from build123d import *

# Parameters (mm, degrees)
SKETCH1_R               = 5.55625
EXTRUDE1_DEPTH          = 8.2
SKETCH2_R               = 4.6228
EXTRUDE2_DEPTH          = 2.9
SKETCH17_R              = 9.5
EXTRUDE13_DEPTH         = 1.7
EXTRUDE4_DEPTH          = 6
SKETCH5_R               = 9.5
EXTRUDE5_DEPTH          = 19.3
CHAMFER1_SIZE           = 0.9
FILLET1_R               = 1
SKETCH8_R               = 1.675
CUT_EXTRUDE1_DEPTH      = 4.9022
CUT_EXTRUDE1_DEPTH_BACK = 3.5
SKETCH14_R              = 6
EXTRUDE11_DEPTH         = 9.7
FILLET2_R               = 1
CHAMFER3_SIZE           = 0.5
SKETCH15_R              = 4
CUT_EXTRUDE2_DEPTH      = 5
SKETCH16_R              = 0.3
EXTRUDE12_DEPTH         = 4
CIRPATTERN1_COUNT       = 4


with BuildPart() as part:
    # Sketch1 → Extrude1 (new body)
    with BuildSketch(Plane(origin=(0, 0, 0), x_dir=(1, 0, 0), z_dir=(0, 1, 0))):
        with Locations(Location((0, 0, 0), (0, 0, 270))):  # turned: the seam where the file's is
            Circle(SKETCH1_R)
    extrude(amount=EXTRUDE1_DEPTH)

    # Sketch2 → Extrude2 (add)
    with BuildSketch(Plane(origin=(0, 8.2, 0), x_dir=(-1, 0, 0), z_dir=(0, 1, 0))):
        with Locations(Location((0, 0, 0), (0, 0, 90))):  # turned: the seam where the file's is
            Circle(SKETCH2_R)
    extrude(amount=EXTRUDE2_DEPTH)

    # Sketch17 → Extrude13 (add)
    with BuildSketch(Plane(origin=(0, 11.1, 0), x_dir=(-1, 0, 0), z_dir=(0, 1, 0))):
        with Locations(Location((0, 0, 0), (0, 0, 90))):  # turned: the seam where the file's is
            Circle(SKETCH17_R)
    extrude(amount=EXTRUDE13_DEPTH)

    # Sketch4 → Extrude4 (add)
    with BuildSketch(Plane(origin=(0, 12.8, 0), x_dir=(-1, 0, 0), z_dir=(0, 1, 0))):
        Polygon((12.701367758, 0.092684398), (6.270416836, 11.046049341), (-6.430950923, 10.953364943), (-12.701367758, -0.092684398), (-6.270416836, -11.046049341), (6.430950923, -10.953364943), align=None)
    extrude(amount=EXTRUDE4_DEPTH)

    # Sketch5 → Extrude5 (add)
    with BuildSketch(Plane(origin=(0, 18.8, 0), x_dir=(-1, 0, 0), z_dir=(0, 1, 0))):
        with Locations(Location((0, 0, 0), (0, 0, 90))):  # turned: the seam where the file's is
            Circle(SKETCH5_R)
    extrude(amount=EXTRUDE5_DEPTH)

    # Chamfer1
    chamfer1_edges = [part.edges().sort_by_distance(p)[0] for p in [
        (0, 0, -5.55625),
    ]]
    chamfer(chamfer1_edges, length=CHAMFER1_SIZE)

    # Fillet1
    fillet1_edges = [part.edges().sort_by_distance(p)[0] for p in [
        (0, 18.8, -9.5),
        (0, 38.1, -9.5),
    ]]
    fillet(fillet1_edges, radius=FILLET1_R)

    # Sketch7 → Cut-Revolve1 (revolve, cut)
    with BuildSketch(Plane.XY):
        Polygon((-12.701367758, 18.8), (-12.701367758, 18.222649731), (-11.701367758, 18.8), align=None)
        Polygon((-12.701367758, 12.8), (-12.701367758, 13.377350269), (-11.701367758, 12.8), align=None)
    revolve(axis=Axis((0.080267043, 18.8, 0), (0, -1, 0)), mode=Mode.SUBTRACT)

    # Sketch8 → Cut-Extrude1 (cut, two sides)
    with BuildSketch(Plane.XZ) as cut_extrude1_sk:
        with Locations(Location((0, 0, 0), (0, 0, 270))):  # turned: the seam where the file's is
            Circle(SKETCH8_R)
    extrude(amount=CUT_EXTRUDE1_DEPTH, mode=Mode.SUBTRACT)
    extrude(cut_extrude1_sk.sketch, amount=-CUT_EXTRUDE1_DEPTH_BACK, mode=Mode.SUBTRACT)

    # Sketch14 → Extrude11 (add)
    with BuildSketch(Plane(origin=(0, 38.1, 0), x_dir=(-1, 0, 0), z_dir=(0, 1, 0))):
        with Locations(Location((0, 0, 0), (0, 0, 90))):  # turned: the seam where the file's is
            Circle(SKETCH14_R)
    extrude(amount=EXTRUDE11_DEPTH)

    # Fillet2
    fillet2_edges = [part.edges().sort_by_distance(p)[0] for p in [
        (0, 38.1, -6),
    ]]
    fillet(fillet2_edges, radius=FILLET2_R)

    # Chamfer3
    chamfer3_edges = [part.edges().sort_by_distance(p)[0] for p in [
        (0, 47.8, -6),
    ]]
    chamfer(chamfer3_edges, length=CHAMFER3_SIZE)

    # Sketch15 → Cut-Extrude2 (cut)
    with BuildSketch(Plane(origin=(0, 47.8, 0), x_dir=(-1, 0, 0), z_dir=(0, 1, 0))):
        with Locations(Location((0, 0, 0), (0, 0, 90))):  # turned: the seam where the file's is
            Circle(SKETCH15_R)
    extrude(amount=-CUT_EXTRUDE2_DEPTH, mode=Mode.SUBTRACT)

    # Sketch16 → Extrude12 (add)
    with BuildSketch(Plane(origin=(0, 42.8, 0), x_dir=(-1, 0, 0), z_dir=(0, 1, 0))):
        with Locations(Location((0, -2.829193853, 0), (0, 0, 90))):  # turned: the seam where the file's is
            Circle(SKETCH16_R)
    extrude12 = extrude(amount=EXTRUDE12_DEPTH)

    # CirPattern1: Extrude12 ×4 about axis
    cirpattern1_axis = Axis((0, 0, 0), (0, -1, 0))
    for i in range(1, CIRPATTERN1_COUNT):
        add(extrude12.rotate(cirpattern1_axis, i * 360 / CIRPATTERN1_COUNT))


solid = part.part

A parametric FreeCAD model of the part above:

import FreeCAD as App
import Part
import Sketcher
from FreeCAD import Vector
Q = App.Units.Quantity


def edges_at(feature, points):
    """Names of the edges that pass closest to the given points."""
    edges = feature.Shape.Edges
    near = lambda p: min(range(len(edges)), key=lambda i: edges[i].distToShape(Part.Vertex(*p))[0])
    return sorted({f"Edge{near(p) + 1}" for p in points})

doc = App.newDocument("Part")
body = doc.addObject("PartDesign::Body", "Body")

sketch1 = doc.addObject("Sketcher::SketchObject", "Sketch")
body.addObject(sketch1)
sketch1.AttachmentSupport = (doc.XZ_Plane, [""])
sketch1.MapMode = "FlatFace"
sketch1.addGeometry(Part.Circle(Vector(0, 0, 0), Vector(0, 0, 1), 6), False)
sketch1.addConstraint([
    Sketcher.Constraint("Coincident", 0, 3, -1, 1),
    Sketcher.Constraint("Diameter", 0, Q("11.1125 mm")),
])
pad1 = doc.addObject("PartDesign::Pad", "Pad")
body.addObject(pad1)
pad1.Profile = sketch1
pad1.Length = 8.2
pad1.Reversed = True

sketch2 = doc.addObject("Sketcher::SketchObject", "Sketch001")
body.addObject(sketch2)
sketch2.AttachmentSupport = (doc.XZ_Plane, [""])
sketch2.MapMode = "FlatFace"
sketch2.AttachmentOffset = App.Placement(Vector(0, 0, -8.2), App.Rotation())
sketch2.addGeometry(Part.Circle(Vector(0, 0, 0), Vector(0, 0, 1), 4.6), False)
sketch2.addConstraint([
    Sketcher.Constraint("Coincident", 0, 3, -1, 1),
    Sketcher.Constraint("Diameter", 0, Q("9.2456 mm")),
])
pad2 = doc.addObject("PartDesign::Pad", "Pad001")
body.addObject(pad2)
pad2.Profile = sketch2
pad2.Length = 2.9
pad2.Reversed = True

sketch3 = doc.addObject("Sketcher::SketchObject", "Sketch002")
body.addObject(sketch3)
sketch3.AttachmentSupport = (doc.XZ_Plane, [""])
sketch3.MapMode = "FlatFace"
sketch3.AttachmentOffset = App.Placement(Vector(0, 0, -11.1), App.Rotation())
sketch3.addGeometry(Part.Circle(Vector(0, 0, 0), Vector(0, 0, 1), 10), False)
sketch3.addConstraint([
    Sketcher.Constraint("Coincident", 0, 3, -1, 1),
    Sketcher.Constraint("Diameter", 0, Q("19 mm")),
])
pad3 = doc.addObject("PartDesign::Pad", "Pad002")
body.addObject(pad3)
pad3.Profile = sketch3
pad3.Length = 1.7
pad3.Reversed = True

sketch4 = doc.addObject("Sketcher::SketchObject", "Sketch003")
body.addObject(sketch4)
sketch4.AttachmentSupport = (doc.XZ_Plane, [""])
sketch4.MapMode = "FlatFace"
sketch4.AttachmentOffset = App.Placement(Vector(0, 0, -12.8), App.Rotation())
sketch4.addGeometry([
    Part.LineSegment(Vector(-13, 0, 0), Vector(-6, 11, 0)),
    Part.LineSegment(Vector(-6, 11, 0), Vector(6, 11, 0)),
    Part.LineSegment(Vector(6, 11, 0), Vector(13, 0, 0)),
    Part.LineSegment(Vector(13, 0, 0), Vector(6, -11, 0)),
    Part.LineSegment(Vector(6, -11, 0), Vector(-6, -11, 0)),
    Part.LineSegment(Vector(-6, -11, 0), Vector(-13, 0, 0)),
], False)
sketch4.addConstraint([
    Sketcher.Constraint("Coincident", 0, 2, 1, 1),
    Sketcher.Constraint("Coincident", 1, 2, 2, 1),
    Sketcher.Constraint("Coincident", 2, 2, 3, 1),
    Sketcher.Constraint("Coincident", 3, 2, 4, 1),
    Sketcher.Constraint("Coincident", 4, 2, 5, 1),
    Sketcher.Constraint("Coincident", 5, 2, 0, 1),
    Sketcher.Constraint("Symmetric", 0, 2, 3, 2, -1, 1),
    Sketcher.Constraint("Symmetric", 1, 2, 4, 2, -1, 1),
    Sketcher.Constraint("Symmetric", 2, 2, 5, 2, -1, 1),
    Sketcher.Constraint("Equal", 0, 1),
    Sketcher.Constraint("Equal", 1, 2),
    Sketcher.Constraint("DistanceY", 3, 2, 0, 2, Q("22.092099 mm")),
    Sketcher.Constraint("DistanceX", 4, 2, 1, 2, Q("12.861902 mm")),
    Sketcher.Constraint("DistanceY", 2, 2, 1, 2, Q("11.046049 mm")),
    Sketcher.Constraint("DistanceX", 3, 2, 2, 2, Q("6.430951 mm")),
])
pad4 = doc.addObject("PartDesign::Pad", "Pad003")
body.addObject(pad4)
pad4.Profile = sketch4
pad4.Length = 6
pad4.Reversed = True

sketch5 = doc.addObject("Sketcher::SketchObject", "Sketch004")
body.addObject(sketch5)
sketch5.AttachmentSupport = (doc.XZ_Plane, [""])
sketch5.MapMode = "FlatFace"
sketch5.AttachmentOffset = App.Placement(Vector(0, 0, -18.8), App.Rotation())
sketch5.addGeometry(Part.Circle(Vector(0, 0, 0), Vector(0, 0, 1), 10), False)
sketch5.addConstraint([
    Sketcher.Constraint("Coincident", 0, 3, -1, 1),
    Sketcher.Constraint("Diameter", 0, Q("19 mm")),
])
pad5 = doc.addObject("PartDesign::Pad", "Pad004")
body.addObject(pad5)
pad5.Profile = sketch5
pad5.Length = 19.3
pad5.Reversed = True
doc.recompute()

chamfer = doc.addObject("PartDesign::Chamfer", "Chamfer")
body.addObject(chamfer)
chamfer.Base = (pad5, edges_at(pad5, [(0, 0, -5.556)]))
chamfer.Size = 0.9
doc.recompute()

fillet = doc.addObject("PartDesign::Fillet", "Fillet")
body.addObject(fillet)
fillet.Base = (chamfer, edges_at(chamfer, [(0, 18.8, -9.5), (0, 38.1, -9.5)]))
fillet.Radius = 1

sketch6 = doc.addObject("Sketcher::SketchObject", "Sketch005")
body.addObject(sketch6)
sketch6.AttachmentSupport = (doc.XY_Plane, [""])
sketch6.MapMode = "FlatFace"
sketch6.addGeometry([
    Part.LineSegment(Vector(-12.7, 18.8, 0), Vector(-12.7, 18.2, 0)),
    Part.LineSegment(Vector(-12.7, 18.2, 0), Vector(-11.7, 18.8, 0)),
    Part.LineSegment(Vector(-11.7, 18.8, 0), Vector(-12.7, 18.8, 0)),
    Part.LineSegment(Vector(-12.7, 13.4, 0), Vector(-12.7, 12.8, 0)),
    Part.LineSegment(Vector(-12.7, 12.8, 0), Vector(-11.7, 12.8, 0)),
    Part.LineSegment(Vector(-11.7, 12.8, 0), Vector(-12.7, 13.4, 0)),
], False)
sketch6.addGeometry(Part.LineSegment(Vector(0.1, 18.8, 0), Vector(0.1, 12.8, 0)), True)
sketch6.addConstraint([
    Sketcher.Constraint("Coincident", 0, 2, 1, 1),
    Sketcher.Constraint("Coincident", 1, 2, 2, 1),
    Sketcher.Constraint("Coincident", 2, 2, 0, 1),
    Sketcher.Constraint("Coincident", 3, 2, 4, 1),
    Sketcher.Constraint("Coincident", 4, 2, 5, 1),
    Sketcher.Constraint("Coincident", 5, 2, 3, 1),
    Sketcher.Constraint("Vertical", 0),
    Sketcher.Constraint("Horizontal", 2),
    Sketcher.Constraint("Vertical", 3),
    Sketcher.Constraint("Horizontal", 4),
    Sketcher.Constraint("Vertical", 6),
    Sketcher.Constraint("Horizontal", 2, 2, 6, 1),
    Sketcher.Constraint("Horizontal", 4, 2, 6, 2),
    Sketcher.Constraint("Vertical", 2, 2, 3, 2),
    Sketcher.Constraint("Vertical", 1, 2, 4, 2),
    Sketcher.Constraint("Equal", 0, 3),
    Sketcher.Constraint("DistanceX", 2, 2, 2, 1, Q("1 mm")),
    Sketcher.Constraint("DistanceY", 6, 2, 6, 1, Q("6 mm")),
    Sketcher.Constraint("Angle", 1, Q("30 deg")),
    Sketcher.Constraint("DistanceY", -1, 1, 1, 2, Q("18.8 mm")),
    Sketcher.Constraint("DistanceX", 0, 2, -1, 1, Q("12.701368 mm")),
    Sketcher.Constraint("DistanceX", -1, 1, 6, 1, Q("0.080267 mm")),
])
groove = doc.addObject("PartDesign::Groove", "Groove")
body.addObject(groove)
groove.Profile = sketch6
groove.ReferenceAxis = (sketch6, ["Axis0"])
groove.Angle = 360

sketch7 = doc.addObject("Sketcher::SketchObject", "Sketch006")
body.addObject(sketch7)
sketch7.AttachmentSupport = (doc.XZ_Plane, [""])
sketch7.MapMode = "FlatFace"
sketch7.addGeometry(Part.Circle(Vector(0, 0, 0), Vector(0, 0, 1), 1.7), False)
sketch7.addConstraint([
    Sketcher.Constraint("Coincident", 0, 3, -1, 1),
    Sketcher.Constraint("Diameter", 0, Q("3.35 mm")),
])
pocket1 = doc.addObject("PartDesign::Pocket", "Pocket")
body.addObject(pocket1)
pocket1.Profile = sketch7
pocket1.Type = "TwoLengths"
pocket1.Length = 4.9022
pocket1.Length2 = 3.5
pocket1.Reversed = True

sketch8 = doc.addObject("Sketcher::SketchObject", "Sketch007")
body.addObject(sketch8)
sketch8.AttachmentSupport = (doc.XZ_Plane, [""])
sketch8.MapMode = "FlatFace"
sketch8.AttachmentOffset = App.Placement(Vector(0, 0, -38.1), App.Rotation())
sketch8.addGeometry(Part.Circle(Vector(0, 0, 0), Vector(0, 0, 1), 6), False)
sketch8.addConstraint([
    Sketcher.Constraint("Coincident", 0, 3, -1, 1),
    Sketcher.Constraint("Diameter", 0, Q("12 mm")),
])
pad6 = doc.addObject("PartDesign::Pad", "Pad005")
body.addObject(pad6)
pad6.Profile = sketch8
pad6.Length = 9.7
pad6.Reversed = True
doc.recompute()

fillet2 = doc.addObject("PartDesign::Fillet", "Fillet001")
body.addObject(fillet2)
fillet2.Base = (pad6, edges_at(pad6, [(0, 38.1, -6)]))
fillet2.Radius = 1
doc.recompute()

chamfer2 = doc.addObject("PartDesign::Chamfer", "Chamfer001")
body.addObject(chamfer2)
chamfer2.Base = (fillet2, edges_at(fillet2, [(0, 47.8, -6)]))
chamfer2.Size = 0.5

sketch9 = doc.addObject("Sketcher::SketchObject", "Sketch008")
body.addObject(sketch9)
sketch9.AttachmentSupport = (doc.XZ_Plane, [""])
sketch9.MapMode = "FlatFace"
sketch9.AttachmentOffset = App.Placement(Vector(0, 0, -47.8), App.Rotation())
sketch9.addGeometry(Part.Circle(Vector(0, 0, 0), Vector(0, 0, 1), 4), False)
sketch9.addConstraint([
    Sketcher.Constraint("Coincident", 0, 3, -1, 1),
    Sketcher.Constraint("Diameter", 0, Q("8 mm")),
])
pocket2 = doc.addObject("PartDesign::Pocket", "Pocket001")
body.addObject(pocket2)
pocket2.Profile = sketch9
pocket2.Length = 5
pocket2.Reversed = True

sketch10 = doc.addObject("Sketcher::SketchObject", "Sketch009")
body.addObject(sketch10)
sketch10.AttachmentSupport = (doc.XZ_Plane, [""])
sketch10.MapMode = "FlatFace"
sketch10.AttachmentOffset = App.Placement(Vector(0, 0, -42.8), App.Rotation())
sketch10.addGeometry(Part.Circle(Vector(0, -2.83, 0), Vector(0, 0, 1), 0.3), False)
sketch10.addConstraint([
    Sketcher.Constraint("PointOnObject", 0, 3, -2),
    Sketcher.Constraint("Diameter", 0, Q("0.6 mm")),
    Sketcher.Constraint("DistanceY", 0, 3, -1, 1, Q("2.829194 mm")),
])
pad7 = doc.addObject("PartDesign::Pad", "Pad006")
body.addObject(pad7)
pad7.Profile = sketch10
pad7.Length = 4
pad7.Reversed = True
doc.recompute()

polarpattern = doc.addObject("PartDesign::PolarPattern", "PolarPattern")
body.addObject(polarpattern)
polarpattern.Originals = [pad7]
polarpattern.Axis = (doc.Y_Axis, [""])
polarpattern.Angle = 360
polarpattern.Occurrences = 4
body.Tip = polarpattern

doc.recompute()
